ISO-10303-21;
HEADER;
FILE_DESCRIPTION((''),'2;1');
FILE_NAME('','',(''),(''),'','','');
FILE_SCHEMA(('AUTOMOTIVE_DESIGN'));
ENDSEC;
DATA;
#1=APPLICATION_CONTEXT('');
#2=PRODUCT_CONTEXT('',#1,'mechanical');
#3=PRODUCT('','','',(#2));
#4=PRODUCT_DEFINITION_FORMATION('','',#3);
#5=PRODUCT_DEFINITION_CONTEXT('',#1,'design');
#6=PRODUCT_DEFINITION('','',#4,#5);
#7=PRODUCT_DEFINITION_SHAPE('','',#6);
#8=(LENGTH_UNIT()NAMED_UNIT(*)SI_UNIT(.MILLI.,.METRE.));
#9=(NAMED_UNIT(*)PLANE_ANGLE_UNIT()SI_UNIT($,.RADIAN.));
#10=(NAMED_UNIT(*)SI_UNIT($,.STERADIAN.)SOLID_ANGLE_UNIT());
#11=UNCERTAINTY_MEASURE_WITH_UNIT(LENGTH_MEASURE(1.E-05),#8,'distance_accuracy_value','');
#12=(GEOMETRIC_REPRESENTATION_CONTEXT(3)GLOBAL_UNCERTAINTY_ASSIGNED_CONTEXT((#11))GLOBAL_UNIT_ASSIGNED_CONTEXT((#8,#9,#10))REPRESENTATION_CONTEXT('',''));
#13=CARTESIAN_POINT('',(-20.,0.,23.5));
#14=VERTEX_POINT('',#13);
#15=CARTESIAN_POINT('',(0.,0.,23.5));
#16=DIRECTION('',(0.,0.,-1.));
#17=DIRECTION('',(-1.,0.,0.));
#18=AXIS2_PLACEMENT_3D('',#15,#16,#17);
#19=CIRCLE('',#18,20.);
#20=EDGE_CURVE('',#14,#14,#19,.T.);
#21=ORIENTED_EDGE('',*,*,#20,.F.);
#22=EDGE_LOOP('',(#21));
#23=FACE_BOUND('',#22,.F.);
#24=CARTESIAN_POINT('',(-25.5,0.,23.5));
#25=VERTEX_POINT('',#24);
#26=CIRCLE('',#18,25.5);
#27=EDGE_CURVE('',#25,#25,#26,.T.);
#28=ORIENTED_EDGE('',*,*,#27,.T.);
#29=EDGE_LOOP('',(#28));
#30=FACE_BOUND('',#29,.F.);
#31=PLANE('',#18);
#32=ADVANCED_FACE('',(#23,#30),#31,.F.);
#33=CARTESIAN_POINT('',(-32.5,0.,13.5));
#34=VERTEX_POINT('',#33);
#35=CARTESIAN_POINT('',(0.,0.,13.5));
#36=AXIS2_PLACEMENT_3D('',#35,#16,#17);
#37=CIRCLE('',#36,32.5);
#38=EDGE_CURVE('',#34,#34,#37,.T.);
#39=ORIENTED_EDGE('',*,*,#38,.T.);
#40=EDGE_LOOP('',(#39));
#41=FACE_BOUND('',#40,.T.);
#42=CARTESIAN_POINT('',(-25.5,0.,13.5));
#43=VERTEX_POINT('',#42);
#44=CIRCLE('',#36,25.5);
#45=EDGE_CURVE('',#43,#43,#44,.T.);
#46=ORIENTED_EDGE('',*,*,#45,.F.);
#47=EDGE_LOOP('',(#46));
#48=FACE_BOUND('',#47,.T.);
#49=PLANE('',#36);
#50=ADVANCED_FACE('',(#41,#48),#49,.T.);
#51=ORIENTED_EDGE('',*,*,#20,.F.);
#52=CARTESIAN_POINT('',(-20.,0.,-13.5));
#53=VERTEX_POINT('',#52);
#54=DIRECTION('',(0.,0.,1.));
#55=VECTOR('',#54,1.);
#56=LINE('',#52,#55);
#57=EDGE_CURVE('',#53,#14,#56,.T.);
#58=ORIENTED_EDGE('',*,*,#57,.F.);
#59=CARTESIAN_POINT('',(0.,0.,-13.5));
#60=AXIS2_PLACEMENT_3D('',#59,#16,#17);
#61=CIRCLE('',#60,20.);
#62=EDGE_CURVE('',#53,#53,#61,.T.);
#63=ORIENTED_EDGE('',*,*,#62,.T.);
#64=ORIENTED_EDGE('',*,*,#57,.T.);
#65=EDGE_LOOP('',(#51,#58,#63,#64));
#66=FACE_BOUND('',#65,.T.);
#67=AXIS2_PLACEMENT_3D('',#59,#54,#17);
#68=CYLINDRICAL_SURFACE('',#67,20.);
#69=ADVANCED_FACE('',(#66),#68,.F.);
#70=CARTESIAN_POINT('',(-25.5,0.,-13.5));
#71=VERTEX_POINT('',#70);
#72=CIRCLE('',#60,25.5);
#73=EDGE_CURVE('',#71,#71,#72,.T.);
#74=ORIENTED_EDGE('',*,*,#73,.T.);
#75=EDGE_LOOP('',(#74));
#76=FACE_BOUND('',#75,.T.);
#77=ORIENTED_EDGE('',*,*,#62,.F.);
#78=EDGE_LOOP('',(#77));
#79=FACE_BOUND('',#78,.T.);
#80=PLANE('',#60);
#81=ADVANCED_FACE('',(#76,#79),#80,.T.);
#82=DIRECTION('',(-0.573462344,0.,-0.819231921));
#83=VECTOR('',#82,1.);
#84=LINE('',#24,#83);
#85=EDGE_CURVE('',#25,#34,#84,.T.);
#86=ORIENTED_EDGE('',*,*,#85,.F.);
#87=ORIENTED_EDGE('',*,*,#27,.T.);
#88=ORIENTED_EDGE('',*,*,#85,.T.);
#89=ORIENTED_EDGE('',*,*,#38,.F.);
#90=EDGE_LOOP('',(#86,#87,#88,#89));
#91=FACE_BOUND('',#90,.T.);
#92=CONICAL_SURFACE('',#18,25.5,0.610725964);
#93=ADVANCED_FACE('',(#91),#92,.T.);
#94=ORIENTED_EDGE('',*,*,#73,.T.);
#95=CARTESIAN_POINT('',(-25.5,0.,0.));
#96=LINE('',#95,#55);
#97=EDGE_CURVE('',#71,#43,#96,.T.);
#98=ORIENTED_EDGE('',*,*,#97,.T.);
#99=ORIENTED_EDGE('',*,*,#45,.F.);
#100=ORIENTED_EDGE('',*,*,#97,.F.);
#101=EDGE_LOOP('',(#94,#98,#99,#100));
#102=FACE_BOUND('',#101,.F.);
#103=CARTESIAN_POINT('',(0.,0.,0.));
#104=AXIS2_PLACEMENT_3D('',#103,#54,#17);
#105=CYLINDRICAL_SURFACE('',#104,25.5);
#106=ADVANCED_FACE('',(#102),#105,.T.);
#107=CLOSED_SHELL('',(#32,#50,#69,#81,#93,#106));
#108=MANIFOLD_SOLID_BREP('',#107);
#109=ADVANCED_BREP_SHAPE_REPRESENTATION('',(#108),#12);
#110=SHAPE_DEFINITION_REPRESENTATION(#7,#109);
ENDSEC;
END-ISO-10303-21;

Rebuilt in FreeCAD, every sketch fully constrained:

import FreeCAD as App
import Part
import Sketcher
from FreeCAD import Vector
Q = App.Units.Quantity

doc = App.newDocument("Part")
params = doc.addObject("Spreadsheet::Sheet", "Params")
for row, (alias, value) in enumerate([
    ("sketch1_width", "7 mm"),
    ("sketch1_height", "27 mm"),
    ("sketch1_height2", "37 mm"),
    ("sketch1_width2", "5.5 mm"),
    ("revolution_angle", "360 deg"),
], start=1):
    params.set(f"A{row}", alias)
    params.set(f"B{row}", "=" + value)
    params.setAlias(f"B{row}", alias)

body = doc.addObject("PartDesign::Body", "Body")

# Sketch on XZ plane
sketch1 = body.newObject("Sketcher::SketchObject", "Sketch")
sketch1.AttachmentSupport = (doc.getObject("XZ_Plane"), [""])
sketch1.MapMode = "FlatFace"
sketch1.addGeometry([
    Part.LineSegment(Vector(-32, 14, 0), Vector(-26, 14, 0)),  # 0
    Part.LineSegment(Vector(-26, 14, 0), Vector(-26, -14, 0)),  # 1
    Part.LineSegment(Vector(-26, -14, 0), Vector(-20, -14, 0)),  # 2
    Part.LineSegment(Vector(-20, -14, 0), Vector(-20, 24, 0)),  # 3
    Part.LineSegment(Vector(-20, 24, 0), Vector(-26, 24, 0)),  # 4
    Part.LineSegment(Vector(-26, 24, 0), Vector(-32, 14, 0)),  # 5
], False)
sketch1.addConstraint([
    Sketcher.Constraint("Coincident", 0, 2, 1, 1),
    Sketcher.Constraint("Coincident", 1, 2, 2, 1),
    Sketcher.Constraint("Coincident", 2, 2, 3, 1),
    Sketcher.Constraint("Coincident", 3, 2, 4, 1),
    Sketcher.Constraint("Coincident", 4, 2, 5, 1),
    Sketcher.Constraint("Coincident", 5, 2, 0, 1),
    Sketcher.Constraint("Horizontal", 0),
    Sketcher.Constraint("Vertical", 1),
    Sketcher.Constraint("Horizontal", 2),
    Sketcher.Constraint("Vertical", 3),
    Sketcher.Constraint("Horizontal", 4),
    Sketcher.Constraint("Vertical", 1, 2, 4, 2),
    Sketcher.Constraint("DistanceX", 0, 1, 0, 2, Q("7 mm")),
    Sketcher.Constraint("DistanceY", 1, 2, 1, 1, Q("27 mm")),
    Sketcher.Constraint("DistanceY", 3, 1, 3, 2, Q("37 mm")),
    Sketcher.Constraint("DistanceX", 2, 1, 2, 2, Q("5.5 mm")),
    Sketcher.Constraint("DistanceX", 2, 2, -1, 1, Q("20 mm")),
    Sketcher.Constraint("DistanceY", -1, 1, 0, 2, Q("13.5 mm")),
])
sketch1.setExpression("Constraints[12]", "Params.sketch1_width")
sketch1.setExpression("Constraints[13]", "Params.sketch1_height")
sketch1.setExpression("Constraints[14]", "Params.sketch1_height2")
sketch1.setExpression("Constraints[15]", "Params.sketch1_width2")
revolution = body.newObject("PartDesign::Revolution", "Revolution")
revolution.Profile = sketch1
revolution.ReferenceAxis = (sketch1, ["V_Axis"])
revolution.setExpression("Angle", "Params.revolution_angle")

doc.recompute()
